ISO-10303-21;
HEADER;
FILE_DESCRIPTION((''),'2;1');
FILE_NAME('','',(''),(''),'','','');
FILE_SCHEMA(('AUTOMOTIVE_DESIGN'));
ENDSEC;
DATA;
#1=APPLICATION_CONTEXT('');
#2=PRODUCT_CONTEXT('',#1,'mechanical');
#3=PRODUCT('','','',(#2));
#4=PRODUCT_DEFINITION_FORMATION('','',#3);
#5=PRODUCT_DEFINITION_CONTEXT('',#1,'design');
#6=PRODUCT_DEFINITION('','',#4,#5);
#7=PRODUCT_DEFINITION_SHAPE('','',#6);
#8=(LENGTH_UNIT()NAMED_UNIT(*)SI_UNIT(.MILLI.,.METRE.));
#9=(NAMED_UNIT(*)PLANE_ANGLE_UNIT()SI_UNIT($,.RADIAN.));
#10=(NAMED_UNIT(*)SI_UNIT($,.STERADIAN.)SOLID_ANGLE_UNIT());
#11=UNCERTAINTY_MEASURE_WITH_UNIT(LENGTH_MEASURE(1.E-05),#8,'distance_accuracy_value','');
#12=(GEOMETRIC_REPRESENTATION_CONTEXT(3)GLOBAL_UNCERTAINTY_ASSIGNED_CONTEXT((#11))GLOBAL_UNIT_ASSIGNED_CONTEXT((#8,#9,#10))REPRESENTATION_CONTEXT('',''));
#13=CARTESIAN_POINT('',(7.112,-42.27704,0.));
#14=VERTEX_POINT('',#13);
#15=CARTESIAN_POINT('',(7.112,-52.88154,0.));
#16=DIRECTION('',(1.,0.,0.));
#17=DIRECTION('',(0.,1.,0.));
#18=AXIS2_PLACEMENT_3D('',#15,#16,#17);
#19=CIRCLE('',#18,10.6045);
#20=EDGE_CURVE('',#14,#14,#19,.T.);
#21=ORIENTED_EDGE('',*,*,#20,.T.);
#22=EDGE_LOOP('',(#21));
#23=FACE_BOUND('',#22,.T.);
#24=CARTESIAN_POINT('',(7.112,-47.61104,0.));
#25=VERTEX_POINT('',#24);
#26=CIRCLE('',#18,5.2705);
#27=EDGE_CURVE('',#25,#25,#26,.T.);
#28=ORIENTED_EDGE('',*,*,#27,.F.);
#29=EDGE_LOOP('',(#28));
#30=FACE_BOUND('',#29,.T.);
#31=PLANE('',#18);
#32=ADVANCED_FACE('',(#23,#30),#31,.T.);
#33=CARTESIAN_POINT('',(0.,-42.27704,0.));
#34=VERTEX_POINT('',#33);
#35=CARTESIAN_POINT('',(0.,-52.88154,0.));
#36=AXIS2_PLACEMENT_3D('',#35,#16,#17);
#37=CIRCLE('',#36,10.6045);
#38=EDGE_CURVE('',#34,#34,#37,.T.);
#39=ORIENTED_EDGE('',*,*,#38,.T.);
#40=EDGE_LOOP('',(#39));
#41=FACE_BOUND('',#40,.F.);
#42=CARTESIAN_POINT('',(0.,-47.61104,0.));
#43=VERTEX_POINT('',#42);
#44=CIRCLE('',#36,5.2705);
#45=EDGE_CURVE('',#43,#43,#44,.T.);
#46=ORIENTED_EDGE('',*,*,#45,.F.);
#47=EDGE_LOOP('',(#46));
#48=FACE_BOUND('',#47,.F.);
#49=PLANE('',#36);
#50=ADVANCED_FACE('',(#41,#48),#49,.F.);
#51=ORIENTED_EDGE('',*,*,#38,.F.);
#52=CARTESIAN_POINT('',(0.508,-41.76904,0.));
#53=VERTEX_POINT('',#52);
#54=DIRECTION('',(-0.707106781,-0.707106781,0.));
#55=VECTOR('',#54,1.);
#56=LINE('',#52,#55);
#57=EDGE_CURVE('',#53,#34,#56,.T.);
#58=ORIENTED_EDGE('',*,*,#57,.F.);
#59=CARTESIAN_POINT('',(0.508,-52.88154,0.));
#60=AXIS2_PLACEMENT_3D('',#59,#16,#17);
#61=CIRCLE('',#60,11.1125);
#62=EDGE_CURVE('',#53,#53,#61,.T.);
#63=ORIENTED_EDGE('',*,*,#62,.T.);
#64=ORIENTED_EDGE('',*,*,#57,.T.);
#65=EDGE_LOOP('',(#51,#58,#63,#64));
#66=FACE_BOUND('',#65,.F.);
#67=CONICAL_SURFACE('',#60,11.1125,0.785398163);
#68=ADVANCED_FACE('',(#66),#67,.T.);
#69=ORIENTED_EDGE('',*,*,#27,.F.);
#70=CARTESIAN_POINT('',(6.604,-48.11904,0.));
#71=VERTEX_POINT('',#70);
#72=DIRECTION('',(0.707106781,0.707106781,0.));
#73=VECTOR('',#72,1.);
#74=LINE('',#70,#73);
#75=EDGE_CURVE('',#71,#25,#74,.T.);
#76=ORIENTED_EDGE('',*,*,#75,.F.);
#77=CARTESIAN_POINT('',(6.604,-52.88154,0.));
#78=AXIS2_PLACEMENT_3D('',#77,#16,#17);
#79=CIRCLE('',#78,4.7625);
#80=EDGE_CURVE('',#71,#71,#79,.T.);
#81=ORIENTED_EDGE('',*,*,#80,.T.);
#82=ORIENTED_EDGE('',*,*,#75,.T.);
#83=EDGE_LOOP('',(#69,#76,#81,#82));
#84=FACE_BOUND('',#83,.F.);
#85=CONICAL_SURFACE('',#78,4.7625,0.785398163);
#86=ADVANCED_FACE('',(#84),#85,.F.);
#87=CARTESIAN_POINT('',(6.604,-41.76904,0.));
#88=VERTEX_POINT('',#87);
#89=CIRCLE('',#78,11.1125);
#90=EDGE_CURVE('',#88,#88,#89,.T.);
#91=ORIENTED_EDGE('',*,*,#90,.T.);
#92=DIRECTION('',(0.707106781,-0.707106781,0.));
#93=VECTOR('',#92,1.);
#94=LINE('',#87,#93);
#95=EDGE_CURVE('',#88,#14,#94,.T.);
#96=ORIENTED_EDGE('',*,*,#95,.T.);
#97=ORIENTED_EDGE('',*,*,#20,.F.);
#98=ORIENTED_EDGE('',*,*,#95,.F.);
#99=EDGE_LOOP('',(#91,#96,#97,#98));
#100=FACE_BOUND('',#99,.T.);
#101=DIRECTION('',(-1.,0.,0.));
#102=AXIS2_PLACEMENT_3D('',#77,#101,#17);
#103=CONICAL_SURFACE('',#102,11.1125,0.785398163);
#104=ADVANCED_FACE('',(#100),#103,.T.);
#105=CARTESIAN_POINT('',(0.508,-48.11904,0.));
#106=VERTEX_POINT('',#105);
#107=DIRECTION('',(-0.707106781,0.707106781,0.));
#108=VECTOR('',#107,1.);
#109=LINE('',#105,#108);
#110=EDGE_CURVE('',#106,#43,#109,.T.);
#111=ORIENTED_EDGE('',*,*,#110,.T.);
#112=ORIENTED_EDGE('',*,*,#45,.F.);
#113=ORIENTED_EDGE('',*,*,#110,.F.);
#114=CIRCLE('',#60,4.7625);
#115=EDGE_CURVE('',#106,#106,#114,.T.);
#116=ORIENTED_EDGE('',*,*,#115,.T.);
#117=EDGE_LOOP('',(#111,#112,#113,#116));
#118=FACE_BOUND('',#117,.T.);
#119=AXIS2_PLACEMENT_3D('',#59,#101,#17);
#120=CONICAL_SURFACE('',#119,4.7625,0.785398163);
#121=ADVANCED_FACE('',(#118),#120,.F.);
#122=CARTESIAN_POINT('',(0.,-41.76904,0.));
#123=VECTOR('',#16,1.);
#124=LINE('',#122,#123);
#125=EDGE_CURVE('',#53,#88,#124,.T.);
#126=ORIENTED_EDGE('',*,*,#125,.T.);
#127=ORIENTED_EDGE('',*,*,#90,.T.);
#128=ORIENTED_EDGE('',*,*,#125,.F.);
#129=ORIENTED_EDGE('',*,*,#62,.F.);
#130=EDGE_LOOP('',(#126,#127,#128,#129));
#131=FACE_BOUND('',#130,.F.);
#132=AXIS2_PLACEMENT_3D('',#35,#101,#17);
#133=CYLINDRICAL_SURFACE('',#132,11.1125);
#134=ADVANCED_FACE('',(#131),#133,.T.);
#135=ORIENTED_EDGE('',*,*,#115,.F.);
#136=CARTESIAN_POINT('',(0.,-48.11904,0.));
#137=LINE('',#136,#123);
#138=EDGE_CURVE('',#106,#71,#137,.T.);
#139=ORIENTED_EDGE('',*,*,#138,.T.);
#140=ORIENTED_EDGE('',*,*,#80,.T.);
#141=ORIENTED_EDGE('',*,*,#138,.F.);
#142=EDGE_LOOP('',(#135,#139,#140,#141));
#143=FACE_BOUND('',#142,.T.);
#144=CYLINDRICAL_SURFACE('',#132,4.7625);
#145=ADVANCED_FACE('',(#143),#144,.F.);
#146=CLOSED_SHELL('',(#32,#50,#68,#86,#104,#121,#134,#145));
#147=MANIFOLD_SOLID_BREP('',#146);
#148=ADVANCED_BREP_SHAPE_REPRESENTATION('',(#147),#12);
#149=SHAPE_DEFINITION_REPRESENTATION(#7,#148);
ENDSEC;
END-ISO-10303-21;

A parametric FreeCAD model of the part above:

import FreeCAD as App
import Part
import Sketcher

V = App.Vector
Q = App.Units.Quantity


def edges_at(feature, points):
    """Names of the edges that pass closest to the given points."""
    edges = feature.Shape.Edges
    near = lambda p: min(range(len(edges)), key=lambda i: edges[i].distToShape(Part.Vertex(*p))[0])
    return sorted({f"Edge{near(p) + 1}" for p in points})

doc = App.newDocument("Part")
body = doc.addObject("PartDesign::Body", "Body")

# Sketch on YZ plane
sketch1 = body.newObject("Sketcher::SketchObject", "Sketch")
sketch1.AttachmentSupport = (doc.getObject("YZ_Plane"), [""])
sketch1.MapMode = "FlatFace"
sketch1.addGeometry([
    Part.Circle(V(-52.9, 0, 0), V(0, 0, 1), 11.1),
    Part.Circle(V(-52.9, 0, 0), V(0, 0, 1), 4.8),
], False)
sketch1.addConstraint([
    Sketcher.Constraint("Coincident", 1, 3, 0, 3),
    Sketcher.Constraint("PointOnObject", 0, 3, -1),
    Sketcher.Constraint("Diameter", 0, Q("0.875 in")),
    Sketcher.Constraint("Diameter", 1, Q("0.375 in")),
    Sketcher.Constraint("DistanceX", 0, 3, -1, 1, 52.88154),
])
pad1 = body.newObject("PartDesign::Pad", "Pad")
pad1.Profile = sketch1
pad1.Length = Q("0.28 in")
doc.recompute()

chamfer = body.newObject("PartDesign::Chamfer", "Chamfer")
chamfer.Base = (pad1, edges_at(pad1, [
    (7.112, -63.994, 0),
    (7.112, -57.644, 0),
    (0, -63.994, 0),
    (0, -57.644, 0),
]))
chamfer.Size = Q("0.02 in")

doc.recompute()
